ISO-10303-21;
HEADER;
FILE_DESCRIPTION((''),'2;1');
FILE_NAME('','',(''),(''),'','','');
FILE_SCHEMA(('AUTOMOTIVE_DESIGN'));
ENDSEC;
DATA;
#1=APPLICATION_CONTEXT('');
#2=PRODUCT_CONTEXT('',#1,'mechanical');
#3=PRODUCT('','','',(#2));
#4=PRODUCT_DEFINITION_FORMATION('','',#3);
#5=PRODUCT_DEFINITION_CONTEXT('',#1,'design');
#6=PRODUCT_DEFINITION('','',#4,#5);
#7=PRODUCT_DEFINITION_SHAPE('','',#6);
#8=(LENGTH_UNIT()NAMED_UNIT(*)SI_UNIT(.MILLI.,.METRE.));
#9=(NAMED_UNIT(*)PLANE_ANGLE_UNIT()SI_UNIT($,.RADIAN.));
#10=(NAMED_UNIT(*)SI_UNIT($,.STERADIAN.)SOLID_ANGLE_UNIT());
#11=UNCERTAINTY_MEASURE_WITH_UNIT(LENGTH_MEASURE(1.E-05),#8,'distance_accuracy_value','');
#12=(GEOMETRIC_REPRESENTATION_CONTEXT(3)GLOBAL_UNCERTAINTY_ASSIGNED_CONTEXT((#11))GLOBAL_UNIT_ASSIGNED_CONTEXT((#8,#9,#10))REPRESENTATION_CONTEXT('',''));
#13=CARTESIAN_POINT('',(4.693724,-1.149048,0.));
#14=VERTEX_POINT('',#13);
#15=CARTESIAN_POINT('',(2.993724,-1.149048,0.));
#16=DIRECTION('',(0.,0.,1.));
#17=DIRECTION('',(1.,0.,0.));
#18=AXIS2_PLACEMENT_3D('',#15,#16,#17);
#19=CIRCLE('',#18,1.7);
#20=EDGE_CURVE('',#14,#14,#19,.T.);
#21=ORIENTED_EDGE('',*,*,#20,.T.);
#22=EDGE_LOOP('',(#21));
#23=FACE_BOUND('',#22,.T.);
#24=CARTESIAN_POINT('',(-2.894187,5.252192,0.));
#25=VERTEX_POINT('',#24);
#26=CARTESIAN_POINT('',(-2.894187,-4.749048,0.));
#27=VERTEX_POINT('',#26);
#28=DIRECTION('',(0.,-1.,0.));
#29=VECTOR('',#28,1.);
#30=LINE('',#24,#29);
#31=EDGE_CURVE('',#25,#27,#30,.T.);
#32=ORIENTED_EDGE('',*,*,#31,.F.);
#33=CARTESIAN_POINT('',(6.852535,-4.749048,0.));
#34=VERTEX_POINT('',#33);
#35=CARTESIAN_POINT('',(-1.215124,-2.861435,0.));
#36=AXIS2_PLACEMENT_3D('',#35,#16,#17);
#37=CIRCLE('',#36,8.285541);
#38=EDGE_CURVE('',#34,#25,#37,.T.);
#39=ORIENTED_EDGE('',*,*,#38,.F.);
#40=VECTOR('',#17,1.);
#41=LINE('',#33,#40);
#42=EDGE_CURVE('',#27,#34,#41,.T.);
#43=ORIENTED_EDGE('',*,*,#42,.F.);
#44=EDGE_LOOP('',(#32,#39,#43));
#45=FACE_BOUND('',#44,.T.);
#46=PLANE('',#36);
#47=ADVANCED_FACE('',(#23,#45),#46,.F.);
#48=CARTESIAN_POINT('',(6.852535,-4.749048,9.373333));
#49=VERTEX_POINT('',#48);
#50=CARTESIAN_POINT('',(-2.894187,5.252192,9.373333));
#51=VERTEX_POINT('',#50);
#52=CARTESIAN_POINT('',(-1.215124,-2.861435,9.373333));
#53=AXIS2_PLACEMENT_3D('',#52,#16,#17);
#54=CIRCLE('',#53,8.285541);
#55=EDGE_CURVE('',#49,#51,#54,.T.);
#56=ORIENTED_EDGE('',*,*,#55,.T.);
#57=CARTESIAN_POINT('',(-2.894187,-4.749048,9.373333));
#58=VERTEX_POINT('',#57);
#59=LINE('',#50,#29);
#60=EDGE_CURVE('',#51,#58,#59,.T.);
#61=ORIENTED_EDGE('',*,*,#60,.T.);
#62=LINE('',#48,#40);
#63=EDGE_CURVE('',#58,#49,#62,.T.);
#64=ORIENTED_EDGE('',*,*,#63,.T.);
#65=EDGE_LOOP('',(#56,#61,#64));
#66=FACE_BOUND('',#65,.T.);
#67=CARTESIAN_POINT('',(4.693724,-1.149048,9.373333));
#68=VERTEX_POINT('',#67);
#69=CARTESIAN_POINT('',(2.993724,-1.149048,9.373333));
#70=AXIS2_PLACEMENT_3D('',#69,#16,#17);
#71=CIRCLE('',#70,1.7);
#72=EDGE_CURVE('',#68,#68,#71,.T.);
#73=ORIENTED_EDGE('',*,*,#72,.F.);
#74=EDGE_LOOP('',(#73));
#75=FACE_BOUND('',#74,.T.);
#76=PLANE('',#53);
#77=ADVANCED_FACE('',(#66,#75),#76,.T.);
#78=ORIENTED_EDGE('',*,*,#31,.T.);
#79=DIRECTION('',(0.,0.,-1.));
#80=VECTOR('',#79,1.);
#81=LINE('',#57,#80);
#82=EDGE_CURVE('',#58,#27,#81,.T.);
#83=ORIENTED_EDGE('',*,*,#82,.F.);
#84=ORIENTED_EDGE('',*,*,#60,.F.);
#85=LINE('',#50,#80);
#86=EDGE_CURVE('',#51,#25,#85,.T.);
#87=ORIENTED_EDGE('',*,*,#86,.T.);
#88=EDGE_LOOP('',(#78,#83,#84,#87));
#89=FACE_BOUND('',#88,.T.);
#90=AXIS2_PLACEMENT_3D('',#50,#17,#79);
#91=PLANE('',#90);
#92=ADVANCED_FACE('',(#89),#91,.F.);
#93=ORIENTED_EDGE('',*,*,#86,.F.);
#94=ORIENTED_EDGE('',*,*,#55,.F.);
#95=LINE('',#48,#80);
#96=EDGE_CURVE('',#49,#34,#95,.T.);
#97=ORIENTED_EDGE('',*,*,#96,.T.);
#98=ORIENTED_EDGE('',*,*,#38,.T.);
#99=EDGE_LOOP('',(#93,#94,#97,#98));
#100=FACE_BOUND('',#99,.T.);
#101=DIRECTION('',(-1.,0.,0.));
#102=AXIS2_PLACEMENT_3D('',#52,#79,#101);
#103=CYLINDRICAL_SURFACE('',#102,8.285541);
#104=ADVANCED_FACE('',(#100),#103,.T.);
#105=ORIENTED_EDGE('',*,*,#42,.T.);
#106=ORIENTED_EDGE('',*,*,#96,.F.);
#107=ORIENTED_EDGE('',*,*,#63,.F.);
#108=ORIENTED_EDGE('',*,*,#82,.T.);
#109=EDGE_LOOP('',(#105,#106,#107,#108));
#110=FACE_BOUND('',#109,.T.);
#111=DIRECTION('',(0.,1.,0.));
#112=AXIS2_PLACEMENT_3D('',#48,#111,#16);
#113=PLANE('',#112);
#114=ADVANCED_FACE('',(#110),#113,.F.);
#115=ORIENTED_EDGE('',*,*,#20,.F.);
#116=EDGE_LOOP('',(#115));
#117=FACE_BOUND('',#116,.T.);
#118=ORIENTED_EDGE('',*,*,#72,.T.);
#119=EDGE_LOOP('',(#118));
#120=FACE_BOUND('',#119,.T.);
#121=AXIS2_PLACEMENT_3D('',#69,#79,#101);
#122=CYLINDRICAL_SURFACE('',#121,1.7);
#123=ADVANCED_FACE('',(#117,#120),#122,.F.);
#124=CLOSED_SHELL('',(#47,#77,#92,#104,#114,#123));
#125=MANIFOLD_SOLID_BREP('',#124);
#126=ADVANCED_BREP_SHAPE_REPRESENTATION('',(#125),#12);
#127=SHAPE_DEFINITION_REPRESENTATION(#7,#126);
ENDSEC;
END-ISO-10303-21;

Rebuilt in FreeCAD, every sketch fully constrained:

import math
import FreeCAD as App
import Part
import Sketcher

V = App.Vector
Q = App.Units.Quantity

doc = App.newDocument("Part")
params = doc.addObject("Spreadsheet::Sheet", "Params")
for row, (alias, value) in enumerate([
    ("sketch1_diameter", "3.4 mm"),
    ("pad1_length", "9.373333 mm"),
], start=1):
    params.set(f"A{row}", alias)
    params.set(f"B{row}", "=" + value)
    params.setAlias(f"B{row}", alias)

body = doc.addObject("PartDesign::Body", "Body")

# Sketch on XY plane
sketch1 = body.newObject("Sketcher::SketchObject", "Sketch")
sketch1.AttachmentSupport = (doc.getObject("XY_Plane"), [""])
sketch1.MapMode = "FlatFace"
sketch1.addGeometry([
    Part.LineSegment(V(-2.9, -4.7, 0), V(6.9, -4.7, 0)),
    Part.ArcOfCircle(Part.Circle(V(-1.2, -2.9, 0), V(0, 0, 1), 8.3), math.radians(-13), math.radians(102)),
    Part.LineSegment(V(-2.9, 5.3, 0), V(-2.9, -4.7, 0)),
    Part.Circle(V(3, -1.1, 0), V(0, 0, 1), 1.7),
], False)
sketch1.addConstraint([
    Sketcher.Constraint("Coincident", 0, 2, 1, 1),
    Sketcher.Constraint("Coincident", 1, 2, 2, 1),
    Sketcher.Constraint("Coincident", 2, 2, 0, 1),
    Sketcher.Constraint("Horizontal", 0),
    Sketcher.Constraint("Vertical", 2),
    Sketcher.Constraint("Diameter", 3, Q("3.4 mm")),
    Sketcher.Constraint("DistanceY", 0, 2, 3, 3, Q("3.6 mm")),
    Sketcher.Constraint("Radius", 1, Q("8.285541 mm")),
    Sketcher.Constraint("DistanceY", 2, 2, 2, 1, Q("10.00124 mm")),
    Sketcher.Constraint("DistanceX", 0, 1, 0, 2, Q("9.746722 mm")),
    Sketcher.Constraint("DistanceY", -1, 1, 1, 2, Q("5.252192 mm")),
    Sketcher.Constraint("DistanceX", 3, 3, 0, 2, Q("3.858811 mm")),
    Sketcher.Constraint("DistanceX", 1, 3, -1, 1, Q("1.215124 mm")),
])
sketch1.setExpression("Constraints[5]", "Params.sketch1_diameter")
pad1 = body.newObject("PartDesign::Pad", "Pad")
pad1.Profile = sketch1
pad1.setExpression("Length", "Params.pad1_length")

doc.recompute()
